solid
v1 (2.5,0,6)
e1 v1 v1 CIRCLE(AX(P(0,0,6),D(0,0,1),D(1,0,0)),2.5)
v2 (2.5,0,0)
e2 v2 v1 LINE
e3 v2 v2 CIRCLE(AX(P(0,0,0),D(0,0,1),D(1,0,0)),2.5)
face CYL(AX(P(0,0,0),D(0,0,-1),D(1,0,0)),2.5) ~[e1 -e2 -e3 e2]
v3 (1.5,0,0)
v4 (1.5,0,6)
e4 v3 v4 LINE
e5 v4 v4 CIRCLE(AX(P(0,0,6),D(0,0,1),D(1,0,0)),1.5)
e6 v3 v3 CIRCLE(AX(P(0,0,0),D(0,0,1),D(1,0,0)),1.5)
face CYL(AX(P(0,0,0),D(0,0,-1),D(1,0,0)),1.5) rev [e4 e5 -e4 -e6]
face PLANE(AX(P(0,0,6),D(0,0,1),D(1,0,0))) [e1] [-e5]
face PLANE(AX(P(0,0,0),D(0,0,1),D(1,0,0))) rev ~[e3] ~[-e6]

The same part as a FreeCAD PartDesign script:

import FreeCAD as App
import Part
import Sketcher
Q = App.Units.Quantity

doc = App.newDocument("Part")
body = doc.addObject("PartDesign::Body", "Body")

# Sketch on XY plane
sketch1 = doc.addObject("Sketcher::SketchObject", "Sketch")
body.addObject(sketch1)
sketch1.AttachmentSupport = (doc.XY_Plane, [""])
sketch1.MapMode = "FlatFace"
sketch1.addGeometry(Part.Circle(App.Vector(0, 0, 0), App.Vector(0, 0, 1), 2.5), False)
sketch1.addGeometry(Part.Circle(App.Vector(0, 0, 0), App.Vector(0, 0, 1), 1.5), False)
sketch1.addConstraint(Sketcher.Constraint("Coincident", 0, 3, -1, 1))
sketch1.addConstraint(Sketcher.Constraint("Coincident", 1, 3, -1, 1))
sketch1.addConstraint(Sketcher.Constraint("Diameter", 0, Q("5 mm")))
sketch1.addConstraint(Sketcher.Constraint("Diameter", 1, Q("3 mm")))
pad1 = doc.addObject("PartDesign::Pad", "Pad")
body.addObject(pad1)
pad1.Profile = sketch1
pad1.Length = 6

doc.recompute()
